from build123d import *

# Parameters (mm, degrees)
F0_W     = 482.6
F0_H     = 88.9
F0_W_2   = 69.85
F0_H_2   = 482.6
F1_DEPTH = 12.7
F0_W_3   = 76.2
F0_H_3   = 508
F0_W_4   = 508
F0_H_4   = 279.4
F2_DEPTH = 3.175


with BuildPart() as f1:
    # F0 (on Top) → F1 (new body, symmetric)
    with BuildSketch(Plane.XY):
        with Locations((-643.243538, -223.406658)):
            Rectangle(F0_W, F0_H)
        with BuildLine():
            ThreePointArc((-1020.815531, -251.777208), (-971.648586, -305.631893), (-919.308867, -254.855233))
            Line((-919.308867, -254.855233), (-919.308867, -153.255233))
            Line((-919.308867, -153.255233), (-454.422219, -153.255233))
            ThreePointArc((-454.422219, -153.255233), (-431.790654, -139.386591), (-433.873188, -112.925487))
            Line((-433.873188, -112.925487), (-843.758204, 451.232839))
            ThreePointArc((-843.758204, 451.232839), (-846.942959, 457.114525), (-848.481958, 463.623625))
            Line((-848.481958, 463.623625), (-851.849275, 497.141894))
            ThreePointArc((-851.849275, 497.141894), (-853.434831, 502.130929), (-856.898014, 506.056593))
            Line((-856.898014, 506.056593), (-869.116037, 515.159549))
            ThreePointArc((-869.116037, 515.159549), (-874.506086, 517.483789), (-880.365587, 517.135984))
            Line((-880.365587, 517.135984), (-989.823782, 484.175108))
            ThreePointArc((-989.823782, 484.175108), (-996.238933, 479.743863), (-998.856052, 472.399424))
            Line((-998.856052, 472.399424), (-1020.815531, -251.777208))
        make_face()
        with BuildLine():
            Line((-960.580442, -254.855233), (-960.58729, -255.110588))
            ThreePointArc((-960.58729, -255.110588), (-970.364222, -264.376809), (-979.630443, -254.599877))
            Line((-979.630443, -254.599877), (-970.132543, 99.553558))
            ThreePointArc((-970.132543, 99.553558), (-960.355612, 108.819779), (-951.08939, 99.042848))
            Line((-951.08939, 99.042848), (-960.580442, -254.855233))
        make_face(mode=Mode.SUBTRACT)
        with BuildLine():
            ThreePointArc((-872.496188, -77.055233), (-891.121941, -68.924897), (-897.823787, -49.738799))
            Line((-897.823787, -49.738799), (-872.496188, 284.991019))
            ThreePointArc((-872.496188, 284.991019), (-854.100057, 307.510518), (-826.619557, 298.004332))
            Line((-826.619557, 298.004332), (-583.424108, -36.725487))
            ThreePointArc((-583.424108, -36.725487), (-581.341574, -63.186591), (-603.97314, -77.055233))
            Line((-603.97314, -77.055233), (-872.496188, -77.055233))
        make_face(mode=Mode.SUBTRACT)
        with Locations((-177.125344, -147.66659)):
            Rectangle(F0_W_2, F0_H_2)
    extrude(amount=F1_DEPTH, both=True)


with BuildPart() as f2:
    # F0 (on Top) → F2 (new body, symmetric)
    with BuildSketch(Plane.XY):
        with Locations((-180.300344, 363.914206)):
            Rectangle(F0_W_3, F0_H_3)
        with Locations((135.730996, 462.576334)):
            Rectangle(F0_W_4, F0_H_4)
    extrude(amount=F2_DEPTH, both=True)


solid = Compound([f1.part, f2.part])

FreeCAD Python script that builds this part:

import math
import FreeCAD as App
import Part
import Sketcher

V = App.Vector
Q = App.Units.Quantity

doc = App.newDocument("Part")
body = doc.addObject("PartDesign::Body", "Body")
body.AllowCompound = True

sketch1 = body.newObject("Sketcher::SketchObject", "Sketch")
sketch1.AttachmentSupport = (doc.getObject("XY_Plane"), [""])
sketch1.MapMode = "FlatFace"
sketch1.addGeometry(Part.LineSegment(V(-884.54, -178.96, 0), V(-884.54, -267.86, 0)), False)
sketch1.addGeometry(Part.LineSegment(V(-884.54, -267.86, 0), V(-401.94, -267.86, 0)), False)
sketch1.addGeometry(Part.LineSegment(V(-401.94, -267.86, 0), V(-401.94, -178.96, 0)), False)
sketch1.addGeometry(Part.LineSegment(V(-401.94, -178.96, 0), V(-884.54, -178.96, 0)), False)
sketch1.addGeometry(Part.ArcOfCircle(Part.Circle(V(-970.11, -254.86, 0), V(0, 0, 1), 50.8), math.radians(177), math.radians(360)), False)
sketch1.addGeometry(Part.LineSegment(V(-919.31, -254.86, 0), V(-919.31, -153.26, 0)), False)
sketch1.addGeometry(Part.LineSegment(V(-919.31, -153.26, 0), V(-454.42, -153.26, 0)), False)
sketch1.addGeometry(Part.ArcOfCircle(Part.Circle(V(-454.42, -127.86, 0), V(0, 0, 1), 25.4), math.radians(-90), math.radians(36)), False)
sketch1.addGeometry(Part.LineSegment(V(-433.87, -112.93, 0), V(-843.76, 451.23, 0)), False)
sketch1.addGeometry(Part.ArcOfCircle(Part.Circle(V(-823.21, 466.16, 0), V(0, 0, 1), 25.4), math.radians(-174), math.radians(-144)), False)
sketch1.addGeometry(Part.LineSegment(V(-848.48, 463.62, 0), V(-851.85, 497.14, 0)), False)
sketch1.addGeometry(Part.ArcOfCircle(Part.Circle(V(-864.49, 495.87, 0), V(0, 0, 1), 12.7), math.radians(6), math.radians(53)), False)
sketch1.addGeometry(Part.LineSegment(V(-856.9, 506.06, 0), V(-869.12, 515.16, 0)), False)
sketch1.addGeometry(Part.ArcOfCircle(Part.Circle(V(-876.7, 504.98, 0), V(0, 0, 1), 12.7), math.radians(53), math.radians(107)), False)
sketch1.addGeometry(Part.LineSegment(V(-880.37, 517.14, 0), V(-989.82, 484.18, 0)), False)
sketch1.addGeometry(Part.ArcOfCircle(Part.Circle(V(-986.16, 472.01, 0), V(0, 0, 1), 12.7), math.radians(107), math.radians(178)), False)
sketch1.addGeometry(Part.LineSegment(V(-998.86, 472.4, 0), V(-1020.82, -251.78, 0)), False)
sketch1.addGeometry(Part.LineSegment(V(-951.09, 99.04, 0), V(-960.58, -254.86, 0)), False)
sketch1.addGeometry(Part.LineSegment(V(-960.58, -254.86, 0), V(-960.59, -255.11, 0)), False)
sketch1.addGeometry(Part.ArcOfCircle(Part.Circle(V(-970.11, -254.86, 0), V(0, 0, 1), 9.53), math.radians(178), math.radians(358)), False)
sketch1.addGeometry(Part.LineSegment(V(-979.63, -254.6, 0), V(-970.13, 99.55, 0)), False)
sketch1.addGeometry(Part.ArcOfCircle(Part.Circle(V(-960.61, 99.3, 0), V(0, 0, 1), 9.53), math.radians(-2), math.radians(178)), False)
sketch1.addGeometry(Part.LineSegment(V(-603.97, -77.06, 0), V(-872.5, -77.06, 0)), False)
sketch1.addGeometry(Part.ArcOfCircle(Part.Circle(V(-872.5, -51.66, 0), V(0, 0, 1), 25.4), math.radians(176), math.radians(270)), False)
sketch1.addGeometry(Part.LineSegment(V(-897.82, -49.74, 0), V(-872.5, 284.99, 0)), False)
sketch1.addGeometry(Part.ArcOfCircle(Part.Circle(V(-847.17, 283.07, 0), V(0, 0, 1), 25.4), math.radians(36), math.radians(176)), False)
sketch1.addGeometry(Part.LineSegment(V(-826.62, 298, 0), V(-583.42, -36.73, 0)), False)
sketch1.addGeometry(Part.ArcOfCircle(Part.Circle(V(-603.97, -51.66, 0), V(0, 0, 1), 25.4), math.radians(-90), math.radians(36)), False)
sketch1.addGeometry(Part.LineSegment(V(-212.05, 93.63, 0), V(-212.05, -388.97, 0)), False)
sketch1.addGeometry(Part.LineSegment(V(-212.05, -388.97, 0), V(-142.2, -388.97, 0)), False)
sketch1.addGeometry(Part.LineSegment(V(-142.2, -388.97, 0), V(-142.2, 93.63, 0)), False)
sketch1.addGeometry(Part.LineSegment(V(-142.2, 93.63, 0), V(-212.05, 93.63, 0)), False)
sketch1.addConstraint(Sketcher.Constraint("Coincident", 0, 2, 1, 1))
sketch1.addConstraint(Sketcher.Constraint("Coincident", 1, 2, 2, 1))
sketch1.addConstraint(Sketcher.Constraint("Coincident", 2, 2, 3, 1))
sketch1.addConstraint(Sketcher.Constraint("Coincident", 3, 2, 0, 1))
sketch1.addConstraint(Sketcher.Constraint("Tangent", 4, 2, 5, 1))
sketch1.addConstraint(Sketcher.Constraint("Coincident", 5, 2, 6, 1))
sketch1.addConstraint(Sketcher.Constraint("Tangent", 6, 2, 7, 1))
sketch1.addConstraint(Sketcher.Constraint("Tangent", 7, 2, 8, 1))
sketch1.addConstraint(Sketcher.Constraint("Tangent", 8, 2, 9, 2))
sketch1.addConstraint(Sketcher.Constraint("Tangent", 9, 1, 10, 1))
sketch1.addConstraint(Sketcher.Constraint("Tangent", 10, 2, 11, 1))
sketch1.addConstraint(Sketcher.Constraint("Tangent", 11, 2, 12, 1))
sketch1.addConstraint(Sketcher.Constraint("Tangent", 12, 2, 13, 1))
sketch1.addConstraint(Sketcher.Constraint("Tangent", 13, 2, 14, 1))
sketch1.addConstraint(Sketcher.Constraint("Tangent", 14, 2, 15, 1))
sketch1.addConstraint(Sketcher.Constraint("Tangent", 15, 2, 16, 1))
sketch1.addConstraint(Sketcher.Constraint("Coincident", 16, 2, 4, 1))
sketch1.addConstraint(Sketcher.Constraint("Coincident", 17, 2, 18, 1))
sketch1.addConstraint(Sketcher.Constraint("Tangent", 18, 2, 19, 2))
sketch1.addConstraint(Sketcher.Constraint("Tangent", 19, 1, 20, 1))
sketch1.addConstraint(Sketcher.Constraint("Tangent", 20, 2, 21, 2))
sketch1.addConstraint(Sketcher.Constraint("Tangent", 21, 1, 17, 1))
sketch1.addConstraint(Sketcher.Constraint("Tangent", 22, 2, 23, 2))
sketch1.addConstraint(Sketcher.Constraint("Tangent", 23, 1, 24, 1))
sketch1.addConstraint(Sketcher.Constraint("Tangent", 24, 2, 25, 2))
sketch1.addConstraint(Sketcher.Constraint("Tangent", 25, 1, 26, 1))
sketch1.addConstraint(Sketcher.Constraint("Tangent", 26, 2, 27, 2))
sketch1.addConstraint(Sketcher.Constraint("Tangent", 27, 1, 22, 1))
sketch1.addConstraint(Sketcher.Constraint("Coincident", 28, 2, 29, 1))
sketch1.addConstraint(Sketcher.Constraint("Coincident", 29, 2, 30, 1))
sketch1.addConstraint(Sketcher.Constraint("Coincident", 30, 2, 31, 1))
sketch1.addConstraint(Sketcher.Constraint("Coincident", 31, 2, 28, 1))
sketch1.addConstraint(Sketcher.Constraint("Vertical", 0))
sketch1.addConstraint(Sketcher.Constraint("Horizontal", 1))
sketch1.addConstraint(Sketcher.Constraint("Vertical", 2))
sketch1.addConstraint(Sketcher.Constraint("Horizontal", 3))
sketch1.addConstraint(Sketcher.Constraint("Vertical", 5))
sketch1.addConstraint(Sketcher.Constraint("Horizontal", 6))
sketch1.addConstraint(Sketcher.Constraint("Horizontal", 22))
sketch1.addConstraint(Sketcher.Constraint("Vertical", 28))
sketch1.addConstraint(Sketcher.Constraint("Horizontal", 29))
sketch1.addConstraint(Sketcher.Constraint("Vertical", 30))
sketch1.addConstraint(Sketcher.Constraint("Horizontal", 31))
sketch1.addConstraint(Sketcher.Constraint("Coincident", 19, 3, 4, 3))
sketch1.addConstraint(Sketcher.Constraint("Equal", 11, 13))
sketch1.addConstraint(Sketcher.Constraint("Equal", 19, 21))
sketch1.addConstraint(Sketcher.Constraint("Equal", 7, 23))
sketch1.addConstraint(Sketcher.Constraint("Equal", 23, 25))
sketch1.addConstraint(Sketcher.Constraint("Equal", 25, 27))
sketch1.addConstraint(Sketcher.Constraint("Parallel", 17, 18))
sketch1.addConstraint(Sketcher.Constraint("Parallel", 8, 26))
sketch1.addConstraint(Sketcher.Constraint("Horizontal", 4, 2, 17, 2))
sketch1.addConstraint(Sketcher.Constraint("Vertical", 22, 2, 24, 2))
sketch1.addConstraint(Sketcher.Constraint("Equal", 3, 28))
sketch1.addConstraint(Sketcher.Constraint("Radius", 4, Q("2 in")))
sketch1.addConstraint(Sketcher.Constraint("Radius", 7, Q("1 in")))
sketch1.addConstraint(Sketcher.Constraint("Radius", 9, Q("0.9999999 in")))
sketch1.addConstraint(Sketcher.Constraint("Radius", 11, Q("0.4999999 in")))
sketch1.addConstraint(Sketcher.Constraint("Radius", 15, Q("0.5 in")))
sketch1.addConstraint(Sketcher.Constraint("DistanceX", 1, 1, 1, 2, Q("19 in")))
sketch1.addConstraint(Sketcher.Constraint("DistanceY", 5, 1, 5, 2, Q("4 in")))
sketch1.addConstraint(Sketcher.Constraint("DistanceY", 0, 2, 0, 1, Q("3.5 in")))
sketch1.addConstraint(Sketcher.Constraint("Angle", 8, Q("126 deg")))
sketch1.addConstraint(Sketcher.Constraint("Radius", 19, Q("0.375 in")))
sketch1.addConstraint(Sketcher.Constraint("DistanceY", 19, 3, 23, 3, Q("8 in")))
sketch1.addConstraint(Sketcher.Constraint("DistanceX", 29, 1, 29, 2, Q("2.75 in")))
sketch1.addConstraint(Sketcher.Constraint("DistanceX", 6, 2, 28, 2, Q("9.5421998 in")))
sketch1.addConstraint(Sketcher.Constraint("Distance", 16, Q("724.509498 mm")))
sketch1.addConstraint(Sketcher.Constraint("DistanceX", 6, 1, 6, 2, Q("464.886648 mm")))
sketch1.addConstraint(Sketcher.Constraint("DistanceX", 22, 2, 22, 1, Q("268.523048 mm")))
sketch1.addConstraint(Sketcher.Constraint("DistanceY", 23, 1, -1, 1, Q("49.738799 mm")))
sketch1.addConstraint(Sketcher.Constraint("DistanceX", 19, 3, 11, 3, Q("105.623202 mm")))
sketch1.addConstraint(Sketcher.Constraint("DistanceX", 4, 3, 21, 3, Q("9.497901 mm")))
sketch1.addConstraint(Sketcher.Constraint("DistanceX", 10, 2, 9, 3, Q("28.640101 mm")))
sketch1.addConstraint(Sketcher.Constraint("DistanceY", 10, 2, 11, 2, Q("8.914699 mm")))
sketch1.addConstraint(Sketcher.Constraint("DistanceX", 21, 1, 25, 3, Q("103.920801 mm")))
sketch1.addConstraint(Sketcher.Constraint("Distance", 10, Q("33.686988 mm")))
sketch1.addConstraint(Sketcher.Constraint("Distance", 12, Q("15.236269 mm")))
sketch1.addConstraint(Sketcher.Constraint("DistanceX", 7, 3, -1, 1, Q("454.42222 mm")))
sketch1.addConstraint(Sketcher.Constraint("DistanceX", 0, 2, -1, 1, Q("884.543538 mm")))
sketch1.addConstraint(Sketcher.Constraint("DistanceY", 0, 2, -1, 1, Q("267.856658 mm")))
sketch1.addConstraint(Sketcher.Constraint("DistanceX", 14, 2, -1, 1, Q("989.823782 mm")))
sketch1.addConstraint(Sketcher.Constraint("DistanceY", -1, 1, 14, 2, Q("484.175108 mm")))
sketch1.addConstraint(Sketcher.Constraint("DistanceY", 28, 2, -1, 1, Q("388.96659 mm")))
sketch1.addConstraint(Sketcher.Constraint("DistanceY", 21, 3, 15, 3, Q("372.716292 mm")))
pad1 = body.newObject("PartDesign::Pad", "Pad")
pad1.Profile = sketch1
pad1.Length = Q("1 in")
pad1.Midplane = True
body2 = doc.addObject("PartDesign::Body", "Body001")
body2.AllowCompound = True

sketch2 = body2.newObject("Sketcher::SketchObject", "Sketch001")
sketch2.AttachmentSupport = (doc.getObject("XY_Plane001"), [""])
sketch2.MapMode = "FlatFace"
sketch2.addGeometry(Part.LineSegment(V(-218, 618, 0), V(-218, 110, 0)), False)
sketch2.addGeometry(Part.LineSegment(V(-218, 110, 0), V(-142, 110, 0)), False)
sketch2.addGeometry(Part.LineSegment(V(-142, 110, 0), V(-142, 618, 0)), False)
sketch2.addGeometry(Part.LineSegment(V(-142, 618, 0), V(-218, 618, 0)), False)
sketch2.addGeometry(Part.LineSegment(V(-118, 602, 0), V(-118, 323, 0)), False)
sketch2.addGeometry(Part.LineSegment(V(-118, 323, 0), V(390, 323, 0)), False)
sketch2.addGeometry(Part.LineSegment(V(390, 323, 0), V(390, 602, 0)), False)
sketch2.addGeometry(Part.LineSegment(V(390, 602, 0), V(-118, 602, 0)), False)
sketch2.addConstraint(Sketcher.Constraint("Coincident", 0, 2, 1, 1))
sketch2.addConstraint(Sketcher.Constraint("Coincident", 1, 2, 2, 1))
sketch2.addConstraint(Sketcher.Constraint("Coincident", 2, 2, 3, 1))
sketch2.addConstraint(Sketcher.Constraint("Coincident", 3, 2, 0, 1))
sketch2.addConstraint(Sketcher.Constraint("Coincident", 4, 2, 5, 1))
sketch2.addConstraint(Sketcher.Constraint("Coincident", 5, 2, 6, 1))
sketch2.addConstraint(Sketcher.Constraint("Coincident", 6, 2, 7, 1))
sketch2.addConstraint(Sketcher.Constraint("Coincident", 7, 2, 4, 1))
sketch2.addConstraint(Sketcher.Constraint("Vertical", 0))
sketch2.addConstraint(Sketcher.Constraint("Horizontal", 1))
sketch2.addConstraint(Sketcher.Constraint("Vertical", 2))
sketch2.addConstraint(Sketcher.Constraint("Horizontal", 3))
sketch2.addConstraint(Sketcher.Constraint("Vertical", 4))
sketch2.addConstraint(Sketcher.Constraint("Horizontal", 5))
sketch2.addConstraint(Sketcher.Constraint("Vertical", 6))
sketch2.addConstraint(Sketcher.Constraint("Horizontal", 7))
sketch2.addConstraint(Sketcher.Constraint("Equal", 7, 0))
sketch2.addConstraint(Sketcher.Constraint("DistanceX", 1, 1, 1, 2, Q("3 in")))
sketch2.addConstraint(Sketcher.Constraint("DistanceX", 5, 1, 5, 2, Q("20 in")))
sketch2.addConstraint(Sketcher.Constraint("DistanceY", 4, 2, 4, 1, Q("11 in")))
sketch2.addConstraint(Sketcher.Constraint("DistanceX", 1, 2, 4, 2, Q("23.93134 mm")))
sketch2.addConstraint(Sketcher.Constraint("DistanceY", 1, 2, 4, 2, Q("212.962128 mm")))
sketch2.addConstraint(Sketcher.Constraint("DistanceX", 0, 2, -1, 1, Q("218.400344 mm")))
sketch2.addConstraint(Sketcher.Constraint("DistanceY", -1, 1, 0, 2, Q("109.914206 mm")))
pad2 = body2.newObject("PartDesign::Pad", "Pad001")
pad2.Profile = sketch2
pad2.Length = Q("0.25 in")
pad2.Midplane = True

doc.recompute()
